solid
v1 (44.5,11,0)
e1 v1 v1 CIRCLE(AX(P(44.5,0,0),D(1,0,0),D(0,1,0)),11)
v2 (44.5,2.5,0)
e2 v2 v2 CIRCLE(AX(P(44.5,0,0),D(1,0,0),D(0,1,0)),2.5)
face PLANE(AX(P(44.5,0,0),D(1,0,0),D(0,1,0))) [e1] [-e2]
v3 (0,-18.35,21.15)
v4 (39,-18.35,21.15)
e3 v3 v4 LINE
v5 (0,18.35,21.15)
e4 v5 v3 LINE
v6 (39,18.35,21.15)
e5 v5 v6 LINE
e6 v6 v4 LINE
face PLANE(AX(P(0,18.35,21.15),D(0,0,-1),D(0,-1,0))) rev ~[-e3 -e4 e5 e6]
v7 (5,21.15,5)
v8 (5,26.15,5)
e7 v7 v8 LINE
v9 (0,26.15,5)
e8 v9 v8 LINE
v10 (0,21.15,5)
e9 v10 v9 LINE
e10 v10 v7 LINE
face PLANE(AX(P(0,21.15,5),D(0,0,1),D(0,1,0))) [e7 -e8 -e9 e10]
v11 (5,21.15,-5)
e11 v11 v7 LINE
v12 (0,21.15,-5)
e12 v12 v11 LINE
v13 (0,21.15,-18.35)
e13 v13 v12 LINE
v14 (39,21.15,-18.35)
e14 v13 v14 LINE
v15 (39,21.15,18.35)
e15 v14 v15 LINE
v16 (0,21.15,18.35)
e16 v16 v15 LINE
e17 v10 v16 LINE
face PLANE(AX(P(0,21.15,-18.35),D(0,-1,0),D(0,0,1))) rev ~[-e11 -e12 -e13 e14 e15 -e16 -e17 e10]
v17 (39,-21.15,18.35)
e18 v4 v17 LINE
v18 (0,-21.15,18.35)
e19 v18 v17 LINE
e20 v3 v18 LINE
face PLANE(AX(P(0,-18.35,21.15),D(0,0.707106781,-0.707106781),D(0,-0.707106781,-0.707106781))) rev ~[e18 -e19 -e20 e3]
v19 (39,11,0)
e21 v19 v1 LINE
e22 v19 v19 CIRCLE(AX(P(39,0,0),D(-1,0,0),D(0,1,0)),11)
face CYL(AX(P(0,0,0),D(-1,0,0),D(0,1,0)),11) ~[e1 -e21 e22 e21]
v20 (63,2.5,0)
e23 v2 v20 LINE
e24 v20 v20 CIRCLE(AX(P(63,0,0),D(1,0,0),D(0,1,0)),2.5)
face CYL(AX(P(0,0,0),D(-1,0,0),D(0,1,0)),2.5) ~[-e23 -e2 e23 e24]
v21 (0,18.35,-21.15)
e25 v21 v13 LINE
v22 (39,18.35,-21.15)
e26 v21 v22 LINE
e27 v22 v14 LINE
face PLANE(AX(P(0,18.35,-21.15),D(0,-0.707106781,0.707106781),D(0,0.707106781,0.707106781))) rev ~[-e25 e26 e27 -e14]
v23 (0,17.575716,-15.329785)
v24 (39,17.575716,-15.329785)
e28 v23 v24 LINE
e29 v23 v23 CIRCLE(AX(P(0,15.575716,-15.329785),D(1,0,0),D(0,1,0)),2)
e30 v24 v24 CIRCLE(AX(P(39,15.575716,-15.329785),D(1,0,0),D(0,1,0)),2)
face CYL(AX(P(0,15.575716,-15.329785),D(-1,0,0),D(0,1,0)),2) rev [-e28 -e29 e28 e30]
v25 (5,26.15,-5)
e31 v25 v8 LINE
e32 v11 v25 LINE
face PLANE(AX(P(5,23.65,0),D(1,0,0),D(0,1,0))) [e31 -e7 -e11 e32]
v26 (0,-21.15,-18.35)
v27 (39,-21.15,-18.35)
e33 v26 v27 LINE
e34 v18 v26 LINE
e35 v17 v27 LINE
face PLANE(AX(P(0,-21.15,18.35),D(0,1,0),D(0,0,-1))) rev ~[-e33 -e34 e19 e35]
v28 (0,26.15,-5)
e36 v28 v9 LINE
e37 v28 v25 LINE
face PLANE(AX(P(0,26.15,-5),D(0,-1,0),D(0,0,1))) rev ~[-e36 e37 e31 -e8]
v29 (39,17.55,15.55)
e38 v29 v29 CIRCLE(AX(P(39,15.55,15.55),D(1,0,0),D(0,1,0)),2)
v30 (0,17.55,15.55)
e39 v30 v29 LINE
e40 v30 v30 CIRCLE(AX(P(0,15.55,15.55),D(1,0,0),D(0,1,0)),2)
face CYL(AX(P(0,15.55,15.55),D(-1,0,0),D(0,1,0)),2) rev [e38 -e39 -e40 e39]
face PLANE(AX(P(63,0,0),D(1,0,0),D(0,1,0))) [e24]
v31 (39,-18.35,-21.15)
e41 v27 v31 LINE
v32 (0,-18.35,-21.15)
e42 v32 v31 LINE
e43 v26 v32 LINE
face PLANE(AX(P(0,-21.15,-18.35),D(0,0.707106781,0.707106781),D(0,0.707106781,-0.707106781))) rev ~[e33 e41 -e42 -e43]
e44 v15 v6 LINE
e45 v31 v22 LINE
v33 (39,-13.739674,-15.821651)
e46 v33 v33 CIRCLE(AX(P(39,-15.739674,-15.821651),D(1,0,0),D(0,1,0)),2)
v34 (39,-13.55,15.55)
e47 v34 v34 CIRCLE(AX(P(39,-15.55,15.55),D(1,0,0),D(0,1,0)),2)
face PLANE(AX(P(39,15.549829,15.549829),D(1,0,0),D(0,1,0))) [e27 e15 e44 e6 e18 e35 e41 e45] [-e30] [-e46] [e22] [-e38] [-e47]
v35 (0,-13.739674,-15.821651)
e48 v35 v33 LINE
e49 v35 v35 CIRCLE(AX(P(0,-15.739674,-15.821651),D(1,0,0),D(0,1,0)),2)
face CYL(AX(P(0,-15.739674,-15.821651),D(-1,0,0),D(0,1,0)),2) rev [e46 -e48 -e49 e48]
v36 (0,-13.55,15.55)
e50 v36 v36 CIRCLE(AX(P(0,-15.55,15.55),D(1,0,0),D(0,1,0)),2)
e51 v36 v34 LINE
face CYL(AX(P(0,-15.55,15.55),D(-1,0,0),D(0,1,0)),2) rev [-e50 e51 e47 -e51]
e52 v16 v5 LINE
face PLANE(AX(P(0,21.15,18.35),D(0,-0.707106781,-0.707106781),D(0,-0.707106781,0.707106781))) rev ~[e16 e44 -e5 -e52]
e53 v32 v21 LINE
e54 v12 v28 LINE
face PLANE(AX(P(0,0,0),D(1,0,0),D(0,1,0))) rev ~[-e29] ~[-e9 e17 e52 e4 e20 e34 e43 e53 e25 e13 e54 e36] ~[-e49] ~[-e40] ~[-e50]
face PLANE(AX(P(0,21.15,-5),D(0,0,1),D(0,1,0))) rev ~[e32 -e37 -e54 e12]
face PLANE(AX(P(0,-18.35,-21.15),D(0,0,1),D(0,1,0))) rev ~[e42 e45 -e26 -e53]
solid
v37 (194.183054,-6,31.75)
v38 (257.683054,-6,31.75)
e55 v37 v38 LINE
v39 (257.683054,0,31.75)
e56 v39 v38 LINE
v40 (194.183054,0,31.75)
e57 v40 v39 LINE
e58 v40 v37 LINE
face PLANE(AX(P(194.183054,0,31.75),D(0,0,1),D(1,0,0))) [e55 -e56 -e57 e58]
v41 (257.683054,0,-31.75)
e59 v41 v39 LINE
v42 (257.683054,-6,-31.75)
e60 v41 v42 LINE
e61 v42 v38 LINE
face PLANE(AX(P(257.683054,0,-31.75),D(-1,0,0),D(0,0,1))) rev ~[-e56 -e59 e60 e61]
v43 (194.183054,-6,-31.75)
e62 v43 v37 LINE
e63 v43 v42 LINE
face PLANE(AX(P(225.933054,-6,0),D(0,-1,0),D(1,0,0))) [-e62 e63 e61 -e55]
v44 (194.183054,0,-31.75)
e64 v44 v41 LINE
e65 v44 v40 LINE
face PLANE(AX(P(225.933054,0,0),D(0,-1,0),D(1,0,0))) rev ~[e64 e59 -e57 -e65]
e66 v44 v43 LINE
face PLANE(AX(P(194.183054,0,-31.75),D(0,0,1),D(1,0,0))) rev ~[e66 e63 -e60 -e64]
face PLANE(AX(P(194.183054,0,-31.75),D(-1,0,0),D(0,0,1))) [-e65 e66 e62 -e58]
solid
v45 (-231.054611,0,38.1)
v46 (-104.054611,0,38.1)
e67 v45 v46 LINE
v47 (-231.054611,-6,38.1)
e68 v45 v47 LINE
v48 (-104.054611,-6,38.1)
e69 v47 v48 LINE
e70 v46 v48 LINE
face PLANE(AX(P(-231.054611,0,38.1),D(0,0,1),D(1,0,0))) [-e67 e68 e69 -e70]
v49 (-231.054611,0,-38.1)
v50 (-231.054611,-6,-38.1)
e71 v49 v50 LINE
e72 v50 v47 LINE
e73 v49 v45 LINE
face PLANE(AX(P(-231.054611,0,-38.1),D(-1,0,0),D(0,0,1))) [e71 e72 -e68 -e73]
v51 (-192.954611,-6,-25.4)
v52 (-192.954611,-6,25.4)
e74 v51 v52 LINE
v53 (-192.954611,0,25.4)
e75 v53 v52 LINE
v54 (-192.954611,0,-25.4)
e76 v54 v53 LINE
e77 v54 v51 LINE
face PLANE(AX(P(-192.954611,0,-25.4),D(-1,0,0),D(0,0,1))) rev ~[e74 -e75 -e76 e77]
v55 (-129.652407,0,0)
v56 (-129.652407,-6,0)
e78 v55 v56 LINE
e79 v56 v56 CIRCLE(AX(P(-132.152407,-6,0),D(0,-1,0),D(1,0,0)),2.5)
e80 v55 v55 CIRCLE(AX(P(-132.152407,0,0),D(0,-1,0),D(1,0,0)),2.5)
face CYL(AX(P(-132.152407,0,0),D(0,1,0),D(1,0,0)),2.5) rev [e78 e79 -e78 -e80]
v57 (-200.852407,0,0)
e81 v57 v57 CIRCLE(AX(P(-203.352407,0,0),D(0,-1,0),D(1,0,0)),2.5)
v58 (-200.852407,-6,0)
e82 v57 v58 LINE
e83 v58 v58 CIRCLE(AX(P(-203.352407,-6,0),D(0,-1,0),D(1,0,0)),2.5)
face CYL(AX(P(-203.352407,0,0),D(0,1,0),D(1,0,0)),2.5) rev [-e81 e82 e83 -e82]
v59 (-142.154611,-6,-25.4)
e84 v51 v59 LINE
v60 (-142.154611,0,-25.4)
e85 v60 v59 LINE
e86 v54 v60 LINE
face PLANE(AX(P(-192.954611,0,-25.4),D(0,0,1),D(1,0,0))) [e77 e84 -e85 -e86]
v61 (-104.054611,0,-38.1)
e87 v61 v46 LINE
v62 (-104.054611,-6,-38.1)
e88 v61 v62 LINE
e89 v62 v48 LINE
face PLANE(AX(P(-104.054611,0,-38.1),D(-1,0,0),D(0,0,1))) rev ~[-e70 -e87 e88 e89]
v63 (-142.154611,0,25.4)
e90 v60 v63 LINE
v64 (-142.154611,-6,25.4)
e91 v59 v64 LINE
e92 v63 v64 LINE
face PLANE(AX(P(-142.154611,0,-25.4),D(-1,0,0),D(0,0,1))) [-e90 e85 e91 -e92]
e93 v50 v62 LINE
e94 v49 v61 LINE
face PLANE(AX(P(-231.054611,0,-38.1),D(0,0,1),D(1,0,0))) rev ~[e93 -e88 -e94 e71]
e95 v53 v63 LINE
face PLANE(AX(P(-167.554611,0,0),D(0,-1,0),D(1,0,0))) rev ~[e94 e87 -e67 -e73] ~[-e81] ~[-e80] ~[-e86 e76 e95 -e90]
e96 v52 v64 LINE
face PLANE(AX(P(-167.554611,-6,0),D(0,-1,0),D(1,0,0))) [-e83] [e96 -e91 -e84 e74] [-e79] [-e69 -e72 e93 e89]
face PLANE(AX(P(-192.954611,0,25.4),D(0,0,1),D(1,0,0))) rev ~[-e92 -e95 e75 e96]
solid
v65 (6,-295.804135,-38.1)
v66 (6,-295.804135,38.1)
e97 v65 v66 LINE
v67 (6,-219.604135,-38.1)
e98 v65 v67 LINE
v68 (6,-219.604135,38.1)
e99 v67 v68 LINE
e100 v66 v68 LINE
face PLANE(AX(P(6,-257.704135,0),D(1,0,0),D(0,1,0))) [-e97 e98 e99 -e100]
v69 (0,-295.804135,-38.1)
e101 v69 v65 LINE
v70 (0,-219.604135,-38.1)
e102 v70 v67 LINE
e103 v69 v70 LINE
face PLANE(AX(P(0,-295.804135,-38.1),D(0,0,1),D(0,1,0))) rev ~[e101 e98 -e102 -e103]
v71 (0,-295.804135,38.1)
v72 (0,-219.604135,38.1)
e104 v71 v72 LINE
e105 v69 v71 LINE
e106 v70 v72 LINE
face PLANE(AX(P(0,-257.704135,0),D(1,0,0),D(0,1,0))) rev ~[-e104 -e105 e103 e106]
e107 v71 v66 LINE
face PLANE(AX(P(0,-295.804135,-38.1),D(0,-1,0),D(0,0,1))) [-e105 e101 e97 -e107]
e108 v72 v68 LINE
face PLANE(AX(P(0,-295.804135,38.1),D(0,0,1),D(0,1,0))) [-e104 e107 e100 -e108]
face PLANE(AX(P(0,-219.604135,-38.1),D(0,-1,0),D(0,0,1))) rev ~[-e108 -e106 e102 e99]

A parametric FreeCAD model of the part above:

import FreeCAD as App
import Part
import Sketcher

V = App.Vector


def add_polygon(sketch, points):
    """Adds a closed chain of lines whose ends are joined by coincident constraints."""
    first, n = sketch.GeometryCount, len(points)
    for a, b in zip(points, points[1:] + points[:1]):
        sketch.addGeometry(Part.LineSegment(App.Vector(*a, 0), App.Vector(*b, 0)), False)
    for i in range(n):
        sketch.addConstraint(Sketcher.Constraint("Coincident", first + i, 2, first + (i + 1) % n, 1))

doc = App.newDocument("Part")
params = doc.addObject("Spreadsheet::Sheet", "Params")
for row, (alias, value) in enumerate([
    ("sketch1_diameter", "4 mm"),
    ("sketch1_width", "36.7 mm"),
    ("pad1_length", "39 mm"),
    ("sketch2_width", "5 mm"),
    ("sketch2_height", "10 mm"),
    ("pad2_length", "5 mm"),
    ("sketch3_diameter", "22 mm"),
    ("sketch3_diameter2", "5 mm"),
    ("pad3_length", "44.5 mm"),
    ("sketch4_diameter", "5 mm"),
    ("pad4_length", "63 mm"),
    ("sketch5_width", "76.2 mm"),
    ("pad5_length", "6 mm"),
    ("sketch6_diameter", "5 mm"),
    ("sketch6_width", "127 mm"),
    ("sketch6_width2", "50.8 mm"),
    ("sketch6_height", "76.2 mm"),
    ("pad6_length", "6 mm"),
    ("sketch7_width", "63.5 mm"),
    ("pad7_length", "6 mm"),
], start=1):
    params.set(f"A{row}", alias)
    params.set(f"B{row}", "=" + value)
    params.setAlias(f"B{row}", alias)

body = doc.addObject("PartDesign::Body", "Body")

sketch1 = doc.addObject("Sketcher::SketchObject", "Sketch")
body.addObject(sketch1)
sketch1.AttachmentSupport = (doc.YZ_Plane, [""])
sketch1.MapMode = "FlatFace"
add_polygon(sketch1, [(21.1, 18.4), (18.4, 21.1), (-18.4, 21.1), (-21.1, 18.4), (-21.1, -18.4), (-18.4, -21.1), (18.4, -21.1), (21.1, -18.4)])
sketch1.addGeometry(Part.Circle(V(-15.7, -15.8, 0), V(0, 0, 1), 2), False)
sketch1.addGeometry(Part.Circle(V(15.6, -15.3, 0), V(0, 0, 1), 2), False)
sketch1.addGeometry(Part.Circle(V(-15.6, 15.6, 0), V(0, 0, 1), 2), False)
sketch1.addGeometry(Part.Circle(V(15.6, 15.6, 0), V(0, 0, 1), 2), False)
sketch1.addConstraint(Sketcher.Constraint("Horizontal", 1))
sketch1.addConstraint(Sketcher.Constraint("Vertical", 3))
sketch1.addConstraint(Sketcher.Constraint("Horizontal", 5))
sketch1.addConstraint(Sketcher.Constraint("Vertical", 7))
sketch1.addConstraint(Sketcher.Constraint("Equal", 8, 9))
sketch1.addConstraint(Sketcher.Constraint("Equal", 9, 10))
sketch1.addConstraint(Sketcher.Constraint("Equal", 10, 11))
sketch1.addConstraint(Sketcher.Constraint("Symmetric", 0, 2, 4, 2, -1, 1))
sketch1.addConstraint(Sketcher.Constraint("Symmetric", 2, 2, 6, 2, -1, 1))
sketch1.addConstraint(Sketcher.Constraint("Symmetric", 10, 3, 11, 3, -2))
sketch1.addConstraint(Sketcher.Constraint("Perpendicular", 0, 2))
sketch1.addConstraint(Sketcher.Constraint("Perpendicular", 2, 4))
sketch1.addConstraint(Sketcher.Constraint("Perpendicular", 4, 6))
sketch1.addConstraint(Sketcher.Constraint("Horizontal", 3, 2, 6, 2))
sketch1.addConstraint(Sketcher.Constraint("Vertical", 1, 2, 4, 2))
sketch1.addConstraint(Sketcher.Constraint("Equal", 5, 3))
sketch1.addConstraint(Sketcher.Constraint("Diameter", 8, 4.0))
sketch1.addConstraint(Sketcher.Constraint("DistanceX", 1, 2, 1, 1, 36.7))
sketch1.addConstraint(Sketcher.Constraint("DistanceX", 10, 3, 11, 3, 31.1))
sketch1.addConstraint(Sketcher.Constraint("DistanceY", 11, 3, 0, 2, 5.6))
sketch1.addConstraint(Sketcher.Constraint("DistanceX", 2, 2, 1, 2, 2.8))
sketch1.addConstraint(Sketcher.Constraint("DistanceY", 8, 3, -1, 1, 15.821651))
sketch1.addConstraint(Sketcher.Constraint("DistanceX", 8, 3, 9, 3, 31.31539))
sketch1.addConstraint(Sketcher.Constraint("DistanceX", 8, 3, -1, 1, 15.739674))
sketch1.addConstraint(Sketcher.Constraint("DistanceY", 9, 3, -1, 1, 15.329785))
sketch1.setExpression("Constraints[24]", "Params.sketch1_diameter")
sketch1.setExpression("Constraints[25]", "Params.sketch1_width")
pad1 = doc.addObject("PartDesign::Pad", "Pad")
body.addObject(pad1)
pad1.Profile = sketch1
pad1.setExpression("Length", "Params.pad1_length")

sketch2 = doc.addObject("Sketcher::SketchObject", "Sketch001")
body.addObject(sketch2)
sketch2.AttachmentSupport = (doc.YZ_Plane, [""])
sketch2.MapMode = "FlatFace"
add_polygon(sketch2, [(21, 5), (21, -5), (26, -5), (26, 5)])
sketch2.addConstraint(Sketcher.Constraint("Vertical", 0))
sketch2.addConstraint(Sketcher.Constraint("Horizontal", 1))
sketch2.addConstraint(Sketcher.Constraint("Vertical", 2))
sketch2.addConstraint(Sketcher.Constraint("Horizontal", 3))
sketch2.addConstraint(Sketcher.Constraint("DistanceX", 1, 1, 1, 2, 5.0))
sketch2.addConstraint(Sketcher.Constraint("DistanceY", 0, 2, 0, 1, 10.0))
sketch2.addConstraint(Sketcher.Constraint("DistanceY", 0, 2, -1, 1, 5.0))
sketch2.addConstraint(Sketcher.Constraint("DistanceX", -1, 1, 0, 2, 21.15))
sketch2.setExpression("Constraints[8]", "Params.sketch2_width")
sketch2.setExpression("Constraints[9]", "Params.sketch2_height")
pad2 = doc.addObject("PartDesign::Pad", "Pad001")
body.addObject(pad2)
pad2.Profile = sketch2
pad2.setExpression("Length", "Params.pad2_length")

sketch3 = doc.addObject("Sketcher::SketchObject", "Sketch002")
body.addObject(sketch3)
sketch3.AttachmentSupport = (doc.YZ_Plane, [""])
sketch3.MapMode = "FlatFace"
sketch3.addGeometry(Part.Circle(V(0, 0, 0), V(0, 0, 1), 11), False)
sketch3.addGeometry(Part.Circle(V(0, 0, 0), V(0, 0, 1), 2.5), False)
sketch3.addConstraint(Sketcher.Constraint("Coincident", 0, 3, -1, 1))
sketch3.addConstraint(Sketcher.Constraint("Coincident", 1, 3, -1, 1))
sketch3.addConstraint(Sketcher.Constraint("Diameter", 0, 22.0))
sketch3.addConstraint(Sketcher.Constraint("Diameter", 1, 5.0))
sketch3.setExpression("Constraints[2]", "Params.sketch3_diameter")
sketch3.setExpression("Constraints[3]", "Params.sketch3_diameter2")
pad3 = doc.addObject("PartDesign::Pad", "Pad002")
body.addObject(pad3)
pad3.Profile = sketch3
pad3.setExpression("Length", "Params.pad3_length")

sketch4 = doc.addObject("Sketcher::SketchObject", "Sketch003")
body.addObject(sketch4)
sketch4.AttachmentSupport = (doc.YZ_Plane, [""])
sketch4.MapMode = "FlatFace"
sketch4.addGeometry(Part.Circle(V(0, 0, 0), V(0, 0, 1), 2.5), False)
sketch4.addConstraint(Sketcher.Constraint("Coincident", 0, 3, -1, 1))
sketch4.addConstraint(Sketcher.Constraint("Diameter", 0, 5.0))
sketch4.setExpression("Constraints[1]", "Params.sketch4_diameter")
pad4 = doc.addObject("PartDesign::Pad", "Pad003")
body.addObject(pad4)
pad4.Profile = sketch4
pad4.setExpression("Length", "Params.pad4_length")
body2 = doc.addObject("PartDesign::Body", "Body001")

sketch5 = doc.addObject("Sketcher::SketchObject", "Sketch004")
body2.addObject(sketch5)
sketch5.AttachmentSupport = (doc.getObject("YZ_Plane001"), [""])
sketch5.MapMode = "FlatFace"
add_polygon(sketch5, [(-296, 38), (-296, -38), (-220, -38), (-220, 38)])
sketch5.addConstraint(Sketcher.Constraint("Vertical", 0))
sketch5.addConstraint(Sketcher.Constraint("Horizontal", 1))
sketch5.addConstraint(Sketcher.Constraint("Vertical", 2))
sketch5.addConstraint(Sketcher.Constraint("Horizontal", 3))
sketch5.addConstraint(Sketcher.Constraint("Equal", 3, 0))
sketch5.addConstraint(Sketcher.Constraint("DistanceX", 1, 1, 1, 2, 76.2))
sketch5.addConstraint(Sketcher.Constraint("DistanceY", 0, 2, -1, 1, 38.1))
sketch5.addConstraint(Sketcher.Constraint("DistanceX", 0, 2, -1, 1, 295.804135))
sketch5.setExpression("Constraints[9]", "Params.sketch5_width")
pad5 = doc.addObject("PartDesign::Pad", "Pad004")
body2.addObject(pad5)
pad5.Profile = sketch5
pad5.setExpression("Length", "Params.pad5_length")
body3 = doc.addObject("PartDesign::Body", "Body002")

sketch6 = doc.addObject("Sketcher::SketchObject", "Sketch005")
body3.addObject(sketch6)
sketch6.AttachmentSupport = (doc.getObject("XZ_Plane002"), [""])
sketch6.MapMode = "FlatFace"
add_polygon(sketch6, [(-231.1, 38.1), (-231.1, -38.1), (-104.1, -38.1), (-104.1, 38.1)])
sketch6.addGeometry(Part.Circle(V(-203.4, 0, 0), V(0, 0, 1), 2.5), False)
add_polygon(sketch6, [(-142.2, -25.4), (-193, -25.4), (-193, 25.4), (-142.2, 25.4)])
sketch6.addGeometry(Part.Circle(V(-132.2, 0, 0), V(0, 0, 1), 2.5), False)
sketch6.addConstraint(Sketcher.Constraint("Vertical", 0))
sketch6.addConstraint(Sketcher.Constraint("Horizontal", 1))
sketch6.addConstraint(Sketcher.Constraint("Vertical", 2))
sketch6.addConstraint(Sketcher.Constraint("Horizontal", 3))
sketch6.addConstraint(Sketcher.Constraint("Horizontal", 5))
sketch6.addConstraint(Sketcher.Constraint("Vertical", 6))
sketch6.addConstraint(Sketcher.Constraint("Horizontal", 7))
sketch6.addConstraint(Sketcher.Constraint("Vertical", 8))
sketch6.addConstraint(Sketcher.Constraint("Equal", 4, 9))
sketch6.addConstraint(Sketcher.Constraint("PointOnObject", 4, 3, -1))
sketch6.addConstraint(Sketcher.Constraint("PointOnObject", 9, 3, -1))
sketch6.addConstraint(Sketcher.Constraint("Equal", 7, 6))
sketch6.addConstraint(Sketcher.Constraint("Diameter", 4, 5.0))
sketch6.addConstraint(Sketcher.Constraint("DistanceX", 1, 1, 1, 2, 127.0))
sketch6.addConstraint(Sketcher.Constraint("DistanceX", 5, 2, 5, 1, 50.8))
sketch6.addConstraint(Sketcher.Constraint("DistanceY", 0, 2, 0, 1, 76.2))
sketch6.addConstraint(Sketcher.Constraint("DistanceY", 0, 2, -1, 1, 38.1))
sketch6.addConstraint(Sketcher.Constraint("DistanceY", 5, 2, -1, 1, 25.4))
sketch6.addConstraint(Sketcher.Constraint("DistanceX", 4, 3, 9, 3, 71.2))
sketch6.addConstraint(Sketcher.Constraint("DistanceX", 0, 2, 5, 2, 38.1))
sketch6.addConstraint(Sketcher.Constraint("DistanceX", 0, 2, -1, 1, 231.054611))
sketch6.addConstraint(Sketcher.Constraint("DistanceX", 4, 3, -1, 1, 203.352407))
sketch6.setExpression("Constraints[20]", "Params.sketch6_diameter")
sketch6.setExpression("Constraints[21]", "Params.sketch6_width")
sketch6.setExpression("Constraints[22]", "Params.sketch6_width2")
sketch6.setExpression("Constraints[23]", "Params.sketch6_height")
pad6 = doc.addObject("PartDesign::Pad", "Pad005")
body3.addObject(pad6)
pad6.Profile = sketch6
pad6.setExpression("Length", "Params.pad6_length")
body4 = doc.addObject("PartDesign::Body", "Body003")

sketch7 = doc.addObject("Sketcher::SketchObject", "Sketch006")
body4.addObject(sketch7)
sketch7.AttachmentSupport = (doc.getObject("XZ_Plane003"), [""])
sketch7.MapMode = "FlatFace"
add_polygon(sketch7, [(194, 32), (194, -32), (258, -32), (258, 32)])
sketch7.addConstraint(Sketcher.Constraint("Vertical", 0))
sketch7.addConstraint(Sketcher.Constraint("Horizontal", 1))
sketch7.addConstraint(Sketcher.Constraint("Vertical", 2))
sketch7.addConstraint(Sketcher.Constraint("Horizontal", 3))
sketch7.addConstraint(Sketcher.Constraint("Equal", 3, 0))
sketch7.addConstraint(Sketcher.Constraint("DistanceX", 1, 1, 1, 2, 63.5))
sketch7.addConstraint(Sketcher.Constraint("DistanceY", 0, 2, -1, 1, 31.75))
sketch7.addConstraint(Sketcher.Constraint("DistanceX", -1, 1, 0, 2, 194.183054))
sketch7.setExpression("Constraints[9]", "Params.sketch7_width")
pad7 = doc.addObject("PartDesign::Pad", "Pad006")
body4.addObject(pad7)
pad7.Profile = sketch7
pad7.setExpression("Length", "Params.pad7_length")

doc.recompute()
